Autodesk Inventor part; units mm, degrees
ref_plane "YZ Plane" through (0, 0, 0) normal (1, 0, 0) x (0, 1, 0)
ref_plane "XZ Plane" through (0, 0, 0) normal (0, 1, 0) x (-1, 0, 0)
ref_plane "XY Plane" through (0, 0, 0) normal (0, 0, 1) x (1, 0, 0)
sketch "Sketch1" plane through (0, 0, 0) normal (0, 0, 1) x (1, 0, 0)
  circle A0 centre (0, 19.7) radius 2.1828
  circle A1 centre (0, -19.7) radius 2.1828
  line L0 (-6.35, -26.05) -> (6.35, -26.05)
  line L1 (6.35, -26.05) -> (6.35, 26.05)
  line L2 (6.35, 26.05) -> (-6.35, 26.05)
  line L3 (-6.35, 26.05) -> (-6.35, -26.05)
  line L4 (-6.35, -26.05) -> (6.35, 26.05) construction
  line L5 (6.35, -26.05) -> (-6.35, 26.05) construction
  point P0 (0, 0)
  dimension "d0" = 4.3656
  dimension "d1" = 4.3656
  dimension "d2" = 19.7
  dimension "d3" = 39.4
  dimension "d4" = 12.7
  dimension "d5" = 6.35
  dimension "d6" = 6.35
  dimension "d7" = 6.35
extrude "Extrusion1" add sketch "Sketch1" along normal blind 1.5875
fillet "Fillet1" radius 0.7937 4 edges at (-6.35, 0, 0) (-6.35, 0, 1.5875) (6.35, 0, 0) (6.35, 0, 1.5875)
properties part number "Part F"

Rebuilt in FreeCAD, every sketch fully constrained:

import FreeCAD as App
import Part
import Sketcher
from FreeCAD import Vector
Q = App.Units.Quantity


def edges_at(feature, points):
    """Names of the edges that pass closest to the given points."""
    edges = feature.Shape.Edges
    near = lambda p: min(range(len(edges)), key=lambda i: edges[i].distToShape(Part.Vertex(*p))[0])
    return sorted({f"Edge{near(p) + 1}" for p in points})


def add_polygon(sketch, points):
    """Adds a closed chain of lines whose ends are joined by coincident constraints."""
    first, n = sketch.GeometryCount, len(points)
    for a, b in zip(points, points[1:] + points[:1]):
        sketch.addGeometry(Part.LineSegment(App.Vector(*a, 0), App.Vector(*b, 0)), False)
    for i in range(n):
        sketch.addConstraint(Sketcher.Constraint("Coincident", first + i, 2, first + (i + 1) % n, 1))

doc = App.newDocument("Part")
body = doc.addObject("PartDesign::Body", "Body")

sketch1 = body.newObject("Sketcher::SketchObject", "Sketch")
sketch1.AttachmentSupport = (doc.getObject("XY_Plane"), [""])
sketch1.MapMode = "FlatFace"
add_polygon(sketch1, [(-6.35, 26.05), (-6.35, -26.05), (6.35, -26.05), (6.35, 26.05)])
sketch1.addGeometry(Part.Circle(Vector(0, -19.7, 0), Vector(0, 0, 1), 2.1828), False)
sketch1.addGeometry(Part.Circle(Vector(0, 19.7, 0), Vector(0, 0, 1), 2.1828), False)
sketch1.addConstraint(Sketcher.Constraint("Vertical", 0))
sketch1.addConstraint(Sketcher.Constraint("Horizontal", 1))
sketch1.addConstraint(Sketcher.Constraint("Vertical", 2))
sketch1.addConstraint(Sketcher.Constraint("Horizontal", 3))
sketch1.addConstraint(Sketcher.Constraint("Equal", 4, 5))
sketch1.addConstraint(Sketcher.Constraint("Symmetric", 4, 3, 5, 3, -1, 1))
sketch1.addConstraint(Sketcher.Constraint("Symmetric", 0, 2, 2, 2, -1, 1))
sketch1.addConstraint(Sketcher.Constraint("PointOnObject", 4, 3, -2))
sketch1.addConstraint(Sketcher.Constraint("Diameter", 4, Q("0.171874 in")))
sketch1.addConstraint(Sketcher.Constraint("DistanceX", 1, 1, 1, 2, Q("0.5 in")))
sketch1.addConstraint(Sketcher.Constraint("DistanceY", 0, 2, 4, 3, Q("0.25 in")))
sketch1.addConstraint(Sketcher.Constraint("DistanceY", 4, 3, -1, 1, Q("0.7756 in")))
pad1 = body.newObject("PartDesign::Pad", "Pad")
pad1.Profile = sketch1
pad1.Length = Q("0.0625 in")
doc.recompute()

fillet = body.newObject("PartDesign::Fillet", "Fillet")
fillet.Base = (pad1, edges_at(pad1, [
    (-6.35, 0, 0),
    (-6.35, 0, 1.587),
    (6.35, 0, 0),
    (6.35, 0, 1.587),
]))
fillet.Radius = Q("0.031248 in")

doc.recompute()
